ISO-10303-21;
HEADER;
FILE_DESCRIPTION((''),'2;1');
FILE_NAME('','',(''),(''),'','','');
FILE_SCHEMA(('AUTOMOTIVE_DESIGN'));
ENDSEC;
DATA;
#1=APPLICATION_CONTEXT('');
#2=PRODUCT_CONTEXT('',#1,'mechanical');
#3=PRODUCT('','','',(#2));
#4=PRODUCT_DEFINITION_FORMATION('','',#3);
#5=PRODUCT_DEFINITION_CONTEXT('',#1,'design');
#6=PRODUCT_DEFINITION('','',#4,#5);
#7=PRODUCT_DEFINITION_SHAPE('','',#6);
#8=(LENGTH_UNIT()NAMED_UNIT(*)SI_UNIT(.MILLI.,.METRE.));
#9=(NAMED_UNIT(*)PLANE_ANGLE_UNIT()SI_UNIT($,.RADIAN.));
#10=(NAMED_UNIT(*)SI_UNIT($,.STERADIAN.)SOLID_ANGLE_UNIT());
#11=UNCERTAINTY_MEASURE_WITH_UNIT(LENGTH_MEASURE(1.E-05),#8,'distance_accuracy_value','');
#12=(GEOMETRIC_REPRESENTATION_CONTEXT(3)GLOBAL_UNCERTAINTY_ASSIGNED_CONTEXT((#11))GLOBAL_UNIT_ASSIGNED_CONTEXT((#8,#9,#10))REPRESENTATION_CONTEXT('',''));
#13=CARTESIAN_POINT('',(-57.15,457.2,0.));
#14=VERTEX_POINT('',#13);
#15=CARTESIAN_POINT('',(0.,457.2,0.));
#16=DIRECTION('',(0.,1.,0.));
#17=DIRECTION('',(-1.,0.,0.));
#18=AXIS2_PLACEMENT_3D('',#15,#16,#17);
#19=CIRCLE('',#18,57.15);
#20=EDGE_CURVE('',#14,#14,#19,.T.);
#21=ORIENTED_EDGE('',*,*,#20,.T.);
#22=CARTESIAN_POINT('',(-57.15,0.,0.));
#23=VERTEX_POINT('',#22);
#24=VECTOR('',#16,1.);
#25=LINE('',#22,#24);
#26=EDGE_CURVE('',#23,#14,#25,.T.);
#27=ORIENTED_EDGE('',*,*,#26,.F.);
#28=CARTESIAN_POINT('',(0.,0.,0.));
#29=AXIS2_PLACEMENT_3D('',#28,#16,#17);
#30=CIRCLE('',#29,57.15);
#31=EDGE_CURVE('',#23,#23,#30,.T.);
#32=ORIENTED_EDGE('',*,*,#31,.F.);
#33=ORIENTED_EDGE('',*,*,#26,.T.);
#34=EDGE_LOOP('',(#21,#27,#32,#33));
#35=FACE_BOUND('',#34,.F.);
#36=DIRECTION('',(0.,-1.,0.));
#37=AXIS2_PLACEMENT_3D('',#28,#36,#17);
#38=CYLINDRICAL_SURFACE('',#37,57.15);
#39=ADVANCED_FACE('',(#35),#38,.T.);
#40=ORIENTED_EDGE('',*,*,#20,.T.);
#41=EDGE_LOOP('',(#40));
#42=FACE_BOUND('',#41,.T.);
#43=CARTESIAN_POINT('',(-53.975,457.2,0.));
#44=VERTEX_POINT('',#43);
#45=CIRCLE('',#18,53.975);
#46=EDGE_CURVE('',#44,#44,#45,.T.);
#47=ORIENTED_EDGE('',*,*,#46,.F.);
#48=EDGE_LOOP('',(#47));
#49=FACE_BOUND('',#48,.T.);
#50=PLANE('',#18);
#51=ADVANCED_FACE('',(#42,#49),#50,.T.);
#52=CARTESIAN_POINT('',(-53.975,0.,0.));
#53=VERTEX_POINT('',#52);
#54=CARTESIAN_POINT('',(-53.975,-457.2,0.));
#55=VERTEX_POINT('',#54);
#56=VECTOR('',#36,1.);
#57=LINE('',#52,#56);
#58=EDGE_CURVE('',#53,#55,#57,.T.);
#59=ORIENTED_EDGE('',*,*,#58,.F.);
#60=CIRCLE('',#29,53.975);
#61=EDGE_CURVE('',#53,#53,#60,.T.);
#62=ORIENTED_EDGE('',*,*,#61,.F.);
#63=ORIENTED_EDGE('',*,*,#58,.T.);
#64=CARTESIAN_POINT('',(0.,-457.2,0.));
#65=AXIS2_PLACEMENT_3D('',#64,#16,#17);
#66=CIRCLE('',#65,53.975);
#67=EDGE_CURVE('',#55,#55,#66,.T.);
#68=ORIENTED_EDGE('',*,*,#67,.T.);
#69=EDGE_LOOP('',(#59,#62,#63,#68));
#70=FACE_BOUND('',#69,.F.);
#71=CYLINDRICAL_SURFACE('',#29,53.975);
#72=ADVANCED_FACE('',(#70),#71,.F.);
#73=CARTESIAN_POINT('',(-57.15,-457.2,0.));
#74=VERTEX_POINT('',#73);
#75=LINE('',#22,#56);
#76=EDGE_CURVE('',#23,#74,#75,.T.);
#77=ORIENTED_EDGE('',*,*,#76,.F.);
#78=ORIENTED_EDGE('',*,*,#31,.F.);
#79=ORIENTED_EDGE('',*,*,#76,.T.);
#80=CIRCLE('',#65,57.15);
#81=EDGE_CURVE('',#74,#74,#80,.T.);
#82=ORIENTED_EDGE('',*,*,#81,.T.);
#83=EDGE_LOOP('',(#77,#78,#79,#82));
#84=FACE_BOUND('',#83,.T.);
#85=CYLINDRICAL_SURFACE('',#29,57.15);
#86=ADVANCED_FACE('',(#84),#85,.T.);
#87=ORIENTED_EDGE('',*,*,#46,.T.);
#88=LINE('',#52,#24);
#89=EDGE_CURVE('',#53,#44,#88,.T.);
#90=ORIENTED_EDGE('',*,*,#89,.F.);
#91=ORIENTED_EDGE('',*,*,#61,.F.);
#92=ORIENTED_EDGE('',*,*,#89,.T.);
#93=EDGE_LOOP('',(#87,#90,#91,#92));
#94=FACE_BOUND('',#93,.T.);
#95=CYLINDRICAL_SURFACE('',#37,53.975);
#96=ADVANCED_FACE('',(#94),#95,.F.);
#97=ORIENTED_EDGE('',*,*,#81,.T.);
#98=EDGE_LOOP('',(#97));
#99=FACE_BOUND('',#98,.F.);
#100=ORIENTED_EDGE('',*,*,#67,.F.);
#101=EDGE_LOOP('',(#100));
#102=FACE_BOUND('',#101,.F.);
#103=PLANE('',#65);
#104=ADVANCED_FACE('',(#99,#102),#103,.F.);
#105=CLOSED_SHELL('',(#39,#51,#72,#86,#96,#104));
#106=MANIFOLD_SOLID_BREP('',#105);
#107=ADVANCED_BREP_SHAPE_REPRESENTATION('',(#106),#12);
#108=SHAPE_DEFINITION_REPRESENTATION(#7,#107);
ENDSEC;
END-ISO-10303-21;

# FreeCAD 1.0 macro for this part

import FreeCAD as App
import Part
import Sketcher
from FreeCAD import Vector
Q = App.Units.Quantity

doc = App.newDocument("Part")
body = doc.addObject("PartDesign::Body", "Body")

sketch1 = body.newObject("Sketcher::SketchObject", "Sketch")
sketch1.AttachmentSupport = (doc.getObject("XZ_Plane"), [""])
sketch1.MapMode = "FlatFace"
sketch1.addGeometry([
    Part.Circle(Vector(0, 0, 0), Vector(0, 0, 1), 57.15),
    Part.Circle(Vector(0, 0, 0), Vector(0, 0, 1), 53.975),
], False)
sketch1.addConstraint([
    Sketcher.Constraint("Coincident", 0, 3, -1, 1),
    Sketcher.Constraint("Coincident", 1, 3, -1, 1),
    Sketcher.Constraint("Diameter", 0, Q("4.5 in")),
    Sketcher.Constraint("Diameter", 1, Q("4.25 in")),
])
pad1 = body.newObject("PartDesign::Pad", "Pad")
pad1.Profile = sketch1
pad1.Length = Q("36 in")
pad1.Midplane = True

doc.recompute()
